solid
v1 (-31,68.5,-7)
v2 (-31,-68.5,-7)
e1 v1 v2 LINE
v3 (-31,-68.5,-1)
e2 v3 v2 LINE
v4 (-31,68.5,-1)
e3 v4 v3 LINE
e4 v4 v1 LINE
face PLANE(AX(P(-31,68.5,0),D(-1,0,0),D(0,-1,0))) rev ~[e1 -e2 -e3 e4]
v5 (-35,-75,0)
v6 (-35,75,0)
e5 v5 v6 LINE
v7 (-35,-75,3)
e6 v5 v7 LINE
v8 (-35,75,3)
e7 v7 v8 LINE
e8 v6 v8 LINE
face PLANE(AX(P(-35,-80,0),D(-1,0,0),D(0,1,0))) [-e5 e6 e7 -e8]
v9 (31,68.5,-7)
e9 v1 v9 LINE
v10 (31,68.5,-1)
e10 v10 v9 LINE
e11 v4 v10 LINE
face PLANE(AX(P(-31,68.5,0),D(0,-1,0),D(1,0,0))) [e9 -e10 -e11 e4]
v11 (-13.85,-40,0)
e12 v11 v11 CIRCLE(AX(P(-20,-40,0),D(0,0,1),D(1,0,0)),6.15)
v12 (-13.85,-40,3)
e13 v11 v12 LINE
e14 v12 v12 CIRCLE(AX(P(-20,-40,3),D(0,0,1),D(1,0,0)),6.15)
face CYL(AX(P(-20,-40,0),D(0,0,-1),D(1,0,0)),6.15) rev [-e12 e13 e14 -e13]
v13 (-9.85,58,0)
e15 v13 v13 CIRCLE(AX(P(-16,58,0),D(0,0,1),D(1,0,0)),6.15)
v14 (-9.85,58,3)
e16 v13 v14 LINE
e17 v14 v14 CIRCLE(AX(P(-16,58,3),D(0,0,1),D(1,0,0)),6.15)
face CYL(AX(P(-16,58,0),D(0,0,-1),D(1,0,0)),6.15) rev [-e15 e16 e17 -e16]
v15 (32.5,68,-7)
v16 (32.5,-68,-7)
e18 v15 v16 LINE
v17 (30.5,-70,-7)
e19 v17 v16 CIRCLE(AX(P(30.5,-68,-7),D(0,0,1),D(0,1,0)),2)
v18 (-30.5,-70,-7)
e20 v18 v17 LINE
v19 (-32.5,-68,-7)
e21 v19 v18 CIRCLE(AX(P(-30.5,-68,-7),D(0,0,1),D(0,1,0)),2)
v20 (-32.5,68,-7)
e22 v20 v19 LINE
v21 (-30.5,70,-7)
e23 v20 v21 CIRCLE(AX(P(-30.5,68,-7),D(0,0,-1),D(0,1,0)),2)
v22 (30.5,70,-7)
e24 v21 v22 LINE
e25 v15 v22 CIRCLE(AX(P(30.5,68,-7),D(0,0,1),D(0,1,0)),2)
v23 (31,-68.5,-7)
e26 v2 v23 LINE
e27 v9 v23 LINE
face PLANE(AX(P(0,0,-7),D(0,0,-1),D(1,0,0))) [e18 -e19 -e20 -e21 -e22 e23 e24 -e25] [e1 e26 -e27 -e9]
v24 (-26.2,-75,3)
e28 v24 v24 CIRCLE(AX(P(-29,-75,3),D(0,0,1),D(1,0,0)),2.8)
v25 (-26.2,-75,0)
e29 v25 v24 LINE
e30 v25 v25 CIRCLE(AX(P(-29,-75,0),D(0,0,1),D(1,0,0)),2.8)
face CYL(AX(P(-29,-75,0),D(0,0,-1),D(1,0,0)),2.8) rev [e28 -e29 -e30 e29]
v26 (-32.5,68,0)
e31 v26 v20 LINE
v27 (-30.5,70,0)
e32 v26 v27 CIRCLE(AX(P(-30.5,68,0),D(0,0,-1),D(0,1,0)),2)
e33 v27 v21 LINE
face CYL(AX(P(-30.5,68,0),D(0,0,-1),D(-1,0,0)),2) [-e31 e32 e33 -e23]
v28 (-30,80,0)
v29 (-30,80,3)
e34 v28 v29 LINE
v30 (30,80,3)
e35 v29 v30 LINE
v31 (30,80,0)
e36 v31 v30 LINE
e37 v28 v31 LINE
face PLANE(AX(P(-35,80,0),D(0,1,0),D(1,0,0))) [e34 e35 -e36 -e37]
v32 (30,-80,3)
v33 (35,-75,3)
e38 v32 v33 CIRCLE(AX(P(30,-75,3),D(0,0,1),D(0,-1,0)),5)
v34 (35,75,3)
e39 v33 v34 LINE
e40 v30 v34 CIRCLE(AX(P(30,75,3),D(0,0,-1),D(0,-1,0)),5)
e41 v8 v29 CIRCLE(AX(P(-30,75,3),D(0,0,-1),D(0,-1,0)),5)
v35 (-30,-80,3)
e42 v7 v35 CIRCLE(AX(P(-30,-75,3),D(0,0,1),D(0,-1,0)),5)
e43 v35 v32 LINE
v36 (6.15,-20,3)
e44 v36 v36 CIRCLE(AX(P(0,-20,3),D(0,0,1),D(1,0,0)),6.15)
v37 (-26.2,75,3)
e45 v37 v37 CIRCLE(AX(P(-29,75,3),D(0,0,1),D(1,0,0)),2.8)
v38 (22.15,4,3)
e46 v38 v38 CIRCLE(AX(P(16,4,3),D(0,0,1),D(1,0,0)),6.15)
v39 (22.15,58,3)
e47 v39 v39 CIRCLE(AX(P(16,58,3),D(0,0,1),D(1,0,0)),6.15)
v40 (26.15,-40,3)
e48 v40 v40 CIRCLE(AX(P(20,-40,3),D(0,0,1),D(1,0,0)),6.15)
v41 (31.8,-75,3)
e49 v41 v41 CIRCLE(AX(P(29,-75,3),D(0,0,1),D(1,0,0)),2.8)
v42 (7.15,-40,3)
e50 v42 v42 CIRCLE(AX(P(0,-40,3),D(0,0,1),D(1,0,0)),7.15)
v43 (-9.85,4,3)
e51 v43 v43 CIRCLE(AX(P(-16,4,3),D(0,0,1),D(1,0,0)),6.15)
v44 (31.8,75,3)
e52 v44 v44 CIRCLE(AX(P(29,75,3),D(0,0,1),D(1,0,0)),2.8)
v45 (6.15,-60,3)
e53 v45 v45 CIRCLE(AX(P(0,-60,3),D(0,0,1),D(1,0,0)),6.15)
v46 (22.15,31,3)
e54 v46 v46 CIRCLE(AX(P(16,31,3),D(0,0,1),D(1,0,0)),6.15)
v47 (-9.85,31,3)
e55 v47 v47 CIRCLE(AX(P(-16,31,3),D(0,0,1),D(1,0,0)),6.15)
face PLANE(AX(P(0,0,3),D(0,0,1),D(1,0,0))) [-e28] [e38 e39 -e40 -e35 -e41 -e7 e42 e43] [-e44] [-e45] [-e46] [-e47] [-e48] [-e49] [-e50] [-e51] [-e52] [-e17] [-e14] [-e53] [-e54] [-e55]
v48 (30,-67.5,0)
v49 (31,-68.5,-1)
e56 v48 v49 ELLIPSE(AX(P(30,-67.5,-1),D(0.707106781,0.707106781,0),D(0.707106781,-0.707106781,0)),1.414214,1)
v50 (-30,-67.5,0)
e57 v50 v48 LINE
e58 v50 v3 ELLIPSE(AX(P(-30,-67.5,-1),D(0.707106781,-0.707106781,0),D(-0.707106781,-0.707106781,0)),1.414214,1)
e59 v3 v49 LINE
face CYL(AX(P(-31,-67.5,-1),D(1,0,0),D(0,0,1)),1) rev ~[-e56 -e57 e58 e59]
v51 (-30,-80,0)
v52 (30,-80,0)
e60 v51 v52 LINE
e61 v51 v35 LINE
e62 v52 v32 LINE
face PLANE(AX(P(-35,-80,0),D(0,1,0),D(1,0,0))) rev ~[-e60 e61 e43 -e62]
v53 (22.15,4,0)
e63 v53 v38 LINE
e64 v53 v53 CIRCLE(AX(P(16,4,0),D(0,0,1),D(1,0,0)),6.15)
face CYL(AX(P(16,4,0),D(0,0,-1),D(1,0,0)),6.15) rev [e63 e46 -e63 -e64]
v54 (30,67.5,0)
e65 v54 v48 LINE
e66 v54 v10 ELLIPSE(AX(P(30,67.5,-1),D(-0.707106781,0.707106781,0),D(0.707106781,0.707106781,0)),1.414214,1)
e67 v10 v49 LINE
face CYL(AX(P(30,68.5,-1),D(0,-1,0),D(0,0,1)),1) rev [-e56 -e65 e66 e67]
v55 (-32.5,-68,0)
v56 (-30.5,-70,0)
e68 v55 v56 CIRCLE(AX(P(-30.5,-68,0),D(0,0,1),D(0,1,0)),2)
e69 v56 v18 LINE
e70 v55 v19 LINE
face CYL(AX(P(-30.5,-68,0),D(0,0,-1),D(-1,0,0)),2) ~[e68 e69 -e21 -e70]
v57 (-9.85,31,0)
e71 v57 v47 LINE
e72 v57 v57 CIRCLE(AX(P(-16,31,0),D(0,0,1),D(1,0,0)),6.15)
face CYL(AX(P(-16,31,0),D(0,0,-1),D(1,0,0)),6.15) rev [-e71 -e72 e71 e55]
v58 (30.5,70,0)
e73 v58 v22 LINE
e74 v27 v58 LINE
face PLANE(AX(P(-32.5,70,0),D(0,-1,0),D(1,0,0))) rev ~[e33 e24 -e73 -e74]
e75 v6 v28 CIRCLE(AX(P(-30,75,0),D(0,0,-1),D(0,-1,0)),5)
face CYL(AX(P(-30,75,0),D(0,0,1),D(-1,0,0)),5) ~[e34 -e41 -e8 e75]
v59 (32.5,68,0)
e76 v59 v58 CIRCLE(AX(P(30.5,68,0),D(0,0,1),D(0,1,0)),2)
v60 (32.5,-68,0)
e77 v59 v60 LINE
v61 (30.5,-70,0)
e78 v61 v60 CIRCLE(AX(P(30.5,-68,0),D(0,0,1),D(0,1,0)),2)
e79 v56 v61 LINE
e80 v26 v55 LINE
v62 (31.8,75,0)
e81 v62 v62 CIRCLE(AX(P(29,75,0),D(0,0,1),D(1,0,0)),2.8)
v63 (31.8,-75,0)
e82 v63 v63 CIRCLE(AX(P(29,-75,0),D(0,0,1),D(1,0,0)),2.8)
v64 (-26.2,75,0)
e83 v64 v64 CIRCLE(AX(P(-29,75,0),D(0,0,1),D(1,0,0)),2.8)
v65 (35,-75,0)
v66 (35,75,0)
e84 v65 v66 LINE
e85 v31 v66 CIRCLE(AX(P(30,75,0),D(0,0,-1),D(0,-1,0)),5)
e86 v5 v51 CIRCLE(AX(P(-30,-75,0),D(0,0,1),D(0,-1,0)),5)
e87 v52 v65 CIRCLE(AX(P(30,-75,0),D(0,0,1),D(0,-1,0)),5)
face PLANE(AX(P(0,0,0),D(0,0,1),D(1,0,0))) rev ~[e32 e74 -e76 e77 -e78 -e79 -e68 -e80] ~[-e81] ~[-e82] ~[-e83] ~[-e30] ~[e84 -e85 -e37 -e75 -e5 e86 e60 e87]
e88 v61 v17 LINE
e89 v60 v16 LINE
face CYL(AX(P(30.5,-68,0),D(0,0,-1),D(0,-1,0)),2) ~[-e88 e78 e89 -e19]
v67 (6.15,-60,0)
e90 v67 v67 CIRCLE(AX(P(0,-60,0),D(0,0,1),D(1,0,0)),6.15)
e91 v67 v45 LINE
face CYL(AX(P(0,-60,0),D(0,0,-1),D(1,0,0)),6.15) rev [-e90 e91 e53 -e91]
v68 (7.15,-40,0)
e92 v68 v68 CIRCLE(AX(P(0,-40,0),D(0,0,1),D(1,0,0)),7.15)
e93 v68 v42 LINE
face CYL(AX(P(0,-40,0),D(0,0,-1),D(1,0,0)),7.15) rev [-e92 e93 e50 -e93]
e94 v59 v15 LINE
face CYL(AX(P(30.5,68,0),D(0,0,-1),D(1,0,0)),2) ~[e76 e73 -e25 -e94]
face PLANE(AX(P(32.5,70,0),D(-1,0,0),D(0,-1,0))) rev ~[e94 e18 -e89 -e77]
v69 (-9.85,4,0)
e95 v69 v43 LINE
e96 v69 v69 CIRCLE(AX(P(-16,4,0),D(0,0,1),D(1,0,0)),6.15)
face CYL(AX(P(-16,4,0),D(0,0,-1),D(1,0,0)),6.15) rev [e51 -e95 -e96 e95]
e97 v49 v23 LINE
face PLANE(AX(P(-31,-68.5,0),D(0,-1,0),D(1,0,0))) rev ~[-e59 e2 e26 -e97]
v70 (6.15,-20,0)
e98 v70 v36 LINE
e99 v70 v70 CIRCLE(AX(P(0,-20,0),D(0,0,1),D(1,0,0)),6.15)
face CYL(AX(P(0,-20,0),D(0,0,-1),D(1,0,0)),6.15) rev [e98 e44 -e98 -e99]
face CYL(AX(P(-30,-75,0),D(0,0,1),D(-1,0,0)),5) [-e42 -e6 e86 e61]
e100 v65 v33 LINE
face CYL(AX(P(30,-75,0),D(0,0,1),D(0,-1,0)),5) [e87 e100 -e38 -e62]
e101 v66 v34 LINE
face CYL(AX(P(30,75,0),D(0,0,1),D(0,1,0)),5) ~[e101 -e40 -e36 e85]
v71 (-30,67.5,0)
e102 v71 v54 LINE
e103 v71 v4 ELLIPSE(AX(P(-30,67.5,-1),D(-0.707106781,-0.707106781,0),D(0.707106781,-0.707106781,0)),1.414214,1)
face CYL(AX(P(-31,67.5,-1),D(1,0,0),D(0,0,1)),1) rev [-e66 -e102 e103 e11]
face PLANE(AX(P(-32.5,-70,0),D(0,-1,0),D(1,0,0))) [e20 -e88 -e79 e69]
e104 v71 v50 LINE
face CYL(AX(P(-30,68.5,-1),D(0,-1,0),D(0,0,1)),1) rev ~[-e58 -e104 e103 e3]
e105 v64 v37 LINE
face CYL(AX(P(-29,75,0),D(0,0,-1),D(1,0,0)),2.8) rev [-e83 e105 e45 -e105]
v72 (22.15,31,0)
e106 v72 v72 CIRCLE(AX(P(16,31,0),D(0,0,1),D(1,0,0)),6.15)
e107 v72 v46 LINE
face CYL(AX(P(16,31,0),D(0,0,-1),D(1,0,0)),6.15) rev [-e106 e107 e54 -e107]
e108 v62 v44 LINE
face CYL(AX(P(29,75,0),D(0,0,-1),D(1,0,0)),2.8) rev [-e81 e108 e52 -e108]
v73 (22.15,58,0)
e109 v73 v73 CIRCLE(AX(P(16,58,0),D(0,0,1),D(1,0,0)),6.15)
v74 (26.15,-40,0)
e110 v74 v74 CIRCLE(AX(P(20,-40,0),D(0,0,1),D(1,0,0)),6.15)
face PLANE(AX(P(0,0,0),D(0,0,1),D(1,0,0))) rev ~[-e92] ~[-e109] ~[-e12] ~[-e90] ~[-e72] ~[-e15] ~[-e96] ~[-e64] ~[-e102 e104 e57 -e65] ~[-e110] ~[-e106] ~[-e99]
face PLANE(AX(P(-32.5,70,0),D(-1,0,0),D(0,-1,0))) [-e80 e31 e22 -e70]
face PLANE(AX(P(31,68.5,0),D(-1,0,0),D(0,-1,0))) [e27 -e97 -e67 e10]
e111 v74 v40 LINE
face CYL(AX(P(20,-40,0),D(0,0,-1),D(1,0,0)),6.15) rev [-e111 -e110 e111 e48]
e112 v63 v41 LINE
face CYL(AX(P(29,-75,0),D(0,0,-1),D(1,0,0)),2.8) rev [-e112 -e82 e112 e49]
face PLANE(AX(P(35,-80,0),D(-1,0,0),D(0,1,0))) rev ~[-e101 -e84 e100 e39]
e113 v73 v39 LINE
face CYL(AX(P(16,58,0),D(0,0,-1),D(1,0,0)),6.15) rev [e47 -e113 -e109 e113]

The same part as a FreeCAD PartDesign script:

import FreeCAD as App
import Part
import Sketcher

V = App.Vector


def edges_at(feature, points):
    """Names of the edges that pass closest to the given points."""
    edges = feature.Shape.Edges
    near = lambda p: min(range(len(edges)), key=lambda i: edges[i].distToShape(Part.Vertex(*p))[0])
    return sorted({f"Edge{near(p) + 1}" for p in points})

doc = App.newDocument("Part")
body = doc.addObject("PartDesign::Body", "Body")

sketch1 = body.newObject("Sketcher::SketchObject", "Sketch")
sketch1.AttachmentSupport = (doc.getObject("XY_Plane"), [""])
sketch1.MapMode = "FlatFace"
sketch1.addGeometry([
    Part.LineSegment(V(-35, 80, 0), V(-35, -80, 0)),
    Part.LineSegment(V(-35, -80, 0), V(35, -80, 0)),
    Part.LineSegment(V(35, -80, 0), V(35, 80, 0)),
    Part.LineSegment(V(35, 80, 0), V(-35, 80, 0)),
    Part.Circle(V(-29, -75, 0), V(0, 0, 1), 2.8),
    Part.Circle(V(-20, -40, 0), V(0, 0, 1), 6.2),
    Part.Circle(V(0, -60, 0), V(0, 0, 1), 6.2),
    Part.Circle(V(0, -40, 0), V(0, 0, 1), 7.2),
    Part.Circle(V(29, -75, 0), V(0, 0, 1), 2.8),
    Part.Circle(V(20, -40, 0), V(0, 0, 1), 6.2),
    Part.Circle(V(0, -20, 0), V(0, 0, 1), 6.2),
    Part.Circle(V(-16, 4, 0), V(0, 0, 1), 6.2),
    Part.Circle(V(-16, 31, 0), V(0, 0, 1), 6.2),
    Part.Circle(V(-16, 58, 0), V(0, 0, 1), 6.2),
    Part.Circle(V(-29, 75, 0), V(0, 0, 1), 2.8),
    Part.Circle(V(16, 4, 0), V(0, 0, 1), 6.2),
    Part.Circle(V(16, 31, 0), V(0, 0, 1), 6.2),
    Part.Circle(V(16, 58, 0), V(0, 0, 1), 6.2),
    Part.Circle(V(29, 75, 0), V(0, 0, 1), 2.8),
], False)
sketch1.addConstraint([
    Sketcher.Constraint("Coincident", 0, 2, 1, 1),
    Sketcher.Constraint("Coincident", 1, 2, 2, 1),
    Sketcher.Constraint("Coincident", 2, 2, 3, 1),
    Sketcher.Constraint("Coincident", 3, 2, 0, 1),
    Sketcher.Constraint("Vertical", 0),
    Sketcher.Constraint("Horizontal", 1),
    Sketcher.Constraint("Vertical", 2),
    Sketcher.Constraint("Horizontal", 3),
    Sketcher.Constraint("Equal", 5, 6),
    Sketcher.Constraint("Equal", 4, 8),
    Sketcher.Constraint("Equal", 6, 9),
    Sketcher.Constraint("Equal", 9, 10),
    Sketcher.Constraint("Equal", 10, 11),
    Sketcher.Constraint("Equal", 11, 12),
    Sketcher.Constraint("Equal", 12, 13),
    Sketcher.Constraint("Equal", 8, 14),
    Sketcher.Constraint("Equal", 13, 15),
    Sketcher.Constraint("Equal", 15, 16),
    Sketcher.Constraint("Equal", 16, 17),
    Sketcher.Constraint("Equal", 14, 18),
    Sketcher.Constraint("Symmetric", 8, 3, 14, 3, -1, 1),
    Sketcher.Constraint("Symmetric", 4, 3, 18, 3, -1, 1),
    Sketcher.Constraint("Symmetric", 0, 2, 2, 2, -1, 1),
    Sketcher.Constraint("Symmetric", 4, 3, 8, 3, -2),
    Sketcher.Constraint("Symmetric", 5, 3, 9, 3, -2),
    Sketcher.Constraint("Symmetric", 11, 3, 15, 3, -2),
    Sketcher.Constraint("Symmetric", 12, 3, 16, 3, -2),
    Sketcher.Constraint("Symmetric", 13, 3, 17, 3, -2),
    Sketcher.Constraint("PointOnObject", 6, 3, -2),
    Sketcher.Constraint("PointOnObject", 7, 3, -2),
    Sketcher.Constraint("PointOnObject", 10, 3, -2),
    Sketcher.Constraint("Horizontal", 5, 3, 7, 3),
    Sketcher.Constraint("Vertical", 11, 3, 12, 3),
    Sketcher.Constraint("Vertical", 12, 3, 13, 3),
    Sketcher.Constraint("Diameter", 4, 5.6),
    Sketcher.Constraint("Diameter", 5, 12.3),
    Sketcher.Constraint("Diameter", 7, 14.3),
    Sketcher.Constraint("DistanceX", 1, 1, 1, 2, 70.0),
    Sketcher.Constraint("DistanceY", 0, 2, 0, 1, 160.0),
    Sketcher.Constraint("DistanceX", 4, 3, -1, 1, 29.0),
    Sketcher.Constraint("DistanceY", 4, 3, -1, 1, 75.0),
    Sketcher.Constraint("DistanceX", 5, 3, -1, 1, 20.0),
    Sketcher.Constraint("DistanceY", 5, 3, -1, 1, 40.0),
    Sketcher.Constraint("DistanceY", 6, 3, -1, 1, 60.0),
    Sketcher.Constraint("DistanceY", 10, 3, -1, 1, 20.0),
    Sketcher.Constraint("DistanceX", 11, 3, -1, 1, 16.0),
    Sketcher.Constraint("DistanceY", -1, 1, 11, 3, 4.0),
    Sketcher.Constraint("DistanceY", -1, 1, 12, 3, 31.0),
    Sketcher.Constraint("DistanceY", -1, 1, 13, 3, 58.0),
])
pad1 = body.newObject("PartDesign::Pad", "Pad")
pad1.Profile = sketch1
pad1.Length = 3

sketch2 = body.newObject("Sketcher::SketchObject", "Sketch001")
sketch2.AttachmentSupport = (doc.getObject("XY_Plane"), [""])
sketch2.MapMode = "FlatFace"
sketch2.addGeometry([
    Part.LineSegment(V(-32, -70, 0), V(-32, 70, 0)),
    Part.LineSegment(V(-32, 70, 0), V(32, 70, 0)),
    Part.LineSegment(V(32, 70, 0), V(32, -70, 0)),
    Part.LineSegment(V(32, -70, 0), V(-32, -70, 0)),
    Part.LineSegment(V(31, 68, 0), V(-31, 68, 0)),
    Part.LineSegment(V(-31, 68, 0), V(-31, -68, 0)),
    Part.LineSegment(V(-31, -68, 0), V(31, -68, 0)),
    Part.LineSegment(V(31, -68, 0), V(31, 68, 0)),
], False)
sketch2.addConstraint([
    Sketcher.Constraint("Coincident", 0, 2, 1, 1),
    Sketcher.Constraint("Coincident", 1, 2, 2, 1),
    Sketcher.Constraint("Coincident", 2, 2, 3, 1),
    Sketcher.Constraint("Coincident", 3, 2, 0, 1),
    Sketcher.Constraint("Coincident", 4, 2, 5, 1),
    Sketcher.Constraint("Coincident", 5, 2, 6, 1),
    Sketcher.Constraint("Coincident", 6, 2, 7, 1),
    Sketcher.Constraint("Coincident", 7, 2, 4, 1),
    Sketcher.Constraint("Vertical", 0),
    Sketcher.Constraint("Horizontal", 1),
    Sketcher.Constraint("Vertical", 2),
    Sketcher.Constraint("Horizontal", 3),
    Sketcher.Constraint("Horizontal", 4),
    Sketcher.Constraint("Vertical", 5),
    Sketcher.Constraint("Horizontal", 6),
    Sketcher.Constraint("Vertical", 7),
    Sketcher.Constraint("Symmetric", 0, 2, 2, 2, -1, 1),
    Sketcher.Constraint("Symmetric", 4, 2, 6, 2, -1, 1),
    Sketcher.Constraint("DistanceX", 1, 1, 1, 2, 65.0),
    Sketcher.Constraint("DistanceX", 4, 2, 4, 1, 62.0),
    Sketcher.Constraint("DistanceY", 0, 1, 0, 2, 140.0),
    Sketcher.Constraint("DistanceY", 5, 2, 5, 1, 137.0),
])
pad2 = body.newObject("PartDesign::Pad", "Pad001")
pad2.Profile = sketch2
pad2.Length = 7
pad2.Reversed = True
doc.recompute()

fillet = body.newObject("PartDesign::Fillet", "Fillet")
fillet.Base = (pad2, edges_at(pad2, [
    (0, 68.5, 0),
    (31, 0, 0),
    (-31, 0, 0),
    (0, -68.5, 0),
]))
fillet.Radius = 1
doc.recompute()

fillet2 = body.newObject("PartDesign::Fillet", "Fillet001")
fillet2.Base = (fillet, edges_at(fillet, [
    (-35, 80, 1.5),
    (35, 80, 1.5),
    (-35, -80, 1.5),
    (35, -80, 1.5),
]))
fillet2.Radius = 5
doc.recompute()

fillet3 = body.newObject("PartDesign::Fillet", "Fillet002")
fillet3.Base = (fillet2, edges_at(fillet2, [
    (-32.5, -70, -3.5),
    (32.5, -70, -3.5),
    (-32.5, 70, -3.5),
    (32.5, 70, -3.5),
]))
fillet3.Radius = 2

doc.recompute()
